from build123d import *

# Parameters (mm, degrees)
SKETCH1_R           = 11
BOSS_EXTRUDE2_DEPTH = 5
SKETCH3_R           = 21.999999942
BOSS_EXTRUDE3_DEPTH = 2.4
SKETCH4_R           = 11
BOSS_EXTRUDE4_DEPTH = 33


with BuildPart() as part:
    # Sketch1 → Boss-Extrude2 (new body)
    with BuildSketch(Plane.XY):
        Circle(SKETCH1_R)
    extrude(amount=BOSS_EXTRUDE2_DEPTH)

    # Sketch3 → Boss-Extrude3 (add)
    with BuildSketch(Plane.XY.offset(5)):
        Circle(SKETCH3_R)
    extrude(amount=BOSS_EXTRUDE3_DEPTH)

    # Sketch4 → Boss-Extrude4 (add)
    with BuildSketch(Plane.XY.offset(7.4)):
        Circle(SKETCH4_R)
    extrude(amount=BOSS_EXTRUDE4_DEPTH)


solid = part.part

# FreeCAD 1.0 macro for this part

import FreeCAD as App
import Part
import Sketcher
from FreeCAD import Vector

doc = App.newDocument("Part")
body = doc.addObject("PartDesign::Body", "Body")

sketch1 = doc.addObject("Sketcher::SketchObject", "Sketch")
body.addObject(sketch1)
sketch1.AttachmentSupport = (doc.XY_Plane, [""])
sketch1.MapMode = "FlatFace"
sketch1.addGeometry(Part.Circle(Vector(0, 0, 0), Vector(0, 0, 1), 11), False)
sketch1.addConstraint(Sketcher.Constraint("Coincident", 0, 3, -1, 1))
sketch1.addConstraint(Sketcher.Constraint("Diameter", 0, 22.0))
pad1 = doc.addObject("PartDesign::Pad", "Pad")
body.addObject(pad1)
pad1.Profile = sketch1
pad1.Length = 5

sketch2 = doc.addObject("Sketcher::SketchObject", "Sketch001")
body.addObject(sketch2)
sketch2.AttachmentSupport = (doc.XY_Plane, [""])
sketch2.MapMode = "FlatFace"
sketch2.AttachmentOffset = App.Placement(Vector(0, 0, 5), App.Rotation())
sketch2.addGeometry(Part.Circle(Vector(0, 0, 0), Vector(0, 0, 1), 22), False)
sketch2.addConstraint(Sketcher.Constraint("Coincident", 0, 3, -1, 1))
sketch2.addConstraint(Sketcher.Constraint("Diameter", 0, 44.0))
pad2 = doc.addObject("PartDesign::Pad", "Pad001")
body.addObject(pad2)
pad2.Profile = sketch2
pad2.Length = 2.4

sketch3 = doc.addObject("Sketcher::SketchObject", "Sketch002")
body.addObject(sketch3)
sketch3.AttachmentSupport = (doc.XY_Plane, [""])
sketch3.MapMode = "FlatFace"
sketch3.AttachmentOffset = App.Placement(Vector(0, 0, 7.4), App.Rotation())
sketch3.addGeometry(Part.Circle(Vector(0, 0, 0), Vector(0, 0, 1), 11), False)
sketch3.addConstraint(Sketcher.Constraint("Coincident", 0, 3, -1, 1))
sketch3.addConstraint(Sketcher.Constraint("Diameter", 0, 22.0))
pad3 = doc.addObject("PartDesign::Pad", "Pad002")
body.addObject(pad3)
pad3.Profile = sketch3
pad3.Length = 33

doc.recompute()
